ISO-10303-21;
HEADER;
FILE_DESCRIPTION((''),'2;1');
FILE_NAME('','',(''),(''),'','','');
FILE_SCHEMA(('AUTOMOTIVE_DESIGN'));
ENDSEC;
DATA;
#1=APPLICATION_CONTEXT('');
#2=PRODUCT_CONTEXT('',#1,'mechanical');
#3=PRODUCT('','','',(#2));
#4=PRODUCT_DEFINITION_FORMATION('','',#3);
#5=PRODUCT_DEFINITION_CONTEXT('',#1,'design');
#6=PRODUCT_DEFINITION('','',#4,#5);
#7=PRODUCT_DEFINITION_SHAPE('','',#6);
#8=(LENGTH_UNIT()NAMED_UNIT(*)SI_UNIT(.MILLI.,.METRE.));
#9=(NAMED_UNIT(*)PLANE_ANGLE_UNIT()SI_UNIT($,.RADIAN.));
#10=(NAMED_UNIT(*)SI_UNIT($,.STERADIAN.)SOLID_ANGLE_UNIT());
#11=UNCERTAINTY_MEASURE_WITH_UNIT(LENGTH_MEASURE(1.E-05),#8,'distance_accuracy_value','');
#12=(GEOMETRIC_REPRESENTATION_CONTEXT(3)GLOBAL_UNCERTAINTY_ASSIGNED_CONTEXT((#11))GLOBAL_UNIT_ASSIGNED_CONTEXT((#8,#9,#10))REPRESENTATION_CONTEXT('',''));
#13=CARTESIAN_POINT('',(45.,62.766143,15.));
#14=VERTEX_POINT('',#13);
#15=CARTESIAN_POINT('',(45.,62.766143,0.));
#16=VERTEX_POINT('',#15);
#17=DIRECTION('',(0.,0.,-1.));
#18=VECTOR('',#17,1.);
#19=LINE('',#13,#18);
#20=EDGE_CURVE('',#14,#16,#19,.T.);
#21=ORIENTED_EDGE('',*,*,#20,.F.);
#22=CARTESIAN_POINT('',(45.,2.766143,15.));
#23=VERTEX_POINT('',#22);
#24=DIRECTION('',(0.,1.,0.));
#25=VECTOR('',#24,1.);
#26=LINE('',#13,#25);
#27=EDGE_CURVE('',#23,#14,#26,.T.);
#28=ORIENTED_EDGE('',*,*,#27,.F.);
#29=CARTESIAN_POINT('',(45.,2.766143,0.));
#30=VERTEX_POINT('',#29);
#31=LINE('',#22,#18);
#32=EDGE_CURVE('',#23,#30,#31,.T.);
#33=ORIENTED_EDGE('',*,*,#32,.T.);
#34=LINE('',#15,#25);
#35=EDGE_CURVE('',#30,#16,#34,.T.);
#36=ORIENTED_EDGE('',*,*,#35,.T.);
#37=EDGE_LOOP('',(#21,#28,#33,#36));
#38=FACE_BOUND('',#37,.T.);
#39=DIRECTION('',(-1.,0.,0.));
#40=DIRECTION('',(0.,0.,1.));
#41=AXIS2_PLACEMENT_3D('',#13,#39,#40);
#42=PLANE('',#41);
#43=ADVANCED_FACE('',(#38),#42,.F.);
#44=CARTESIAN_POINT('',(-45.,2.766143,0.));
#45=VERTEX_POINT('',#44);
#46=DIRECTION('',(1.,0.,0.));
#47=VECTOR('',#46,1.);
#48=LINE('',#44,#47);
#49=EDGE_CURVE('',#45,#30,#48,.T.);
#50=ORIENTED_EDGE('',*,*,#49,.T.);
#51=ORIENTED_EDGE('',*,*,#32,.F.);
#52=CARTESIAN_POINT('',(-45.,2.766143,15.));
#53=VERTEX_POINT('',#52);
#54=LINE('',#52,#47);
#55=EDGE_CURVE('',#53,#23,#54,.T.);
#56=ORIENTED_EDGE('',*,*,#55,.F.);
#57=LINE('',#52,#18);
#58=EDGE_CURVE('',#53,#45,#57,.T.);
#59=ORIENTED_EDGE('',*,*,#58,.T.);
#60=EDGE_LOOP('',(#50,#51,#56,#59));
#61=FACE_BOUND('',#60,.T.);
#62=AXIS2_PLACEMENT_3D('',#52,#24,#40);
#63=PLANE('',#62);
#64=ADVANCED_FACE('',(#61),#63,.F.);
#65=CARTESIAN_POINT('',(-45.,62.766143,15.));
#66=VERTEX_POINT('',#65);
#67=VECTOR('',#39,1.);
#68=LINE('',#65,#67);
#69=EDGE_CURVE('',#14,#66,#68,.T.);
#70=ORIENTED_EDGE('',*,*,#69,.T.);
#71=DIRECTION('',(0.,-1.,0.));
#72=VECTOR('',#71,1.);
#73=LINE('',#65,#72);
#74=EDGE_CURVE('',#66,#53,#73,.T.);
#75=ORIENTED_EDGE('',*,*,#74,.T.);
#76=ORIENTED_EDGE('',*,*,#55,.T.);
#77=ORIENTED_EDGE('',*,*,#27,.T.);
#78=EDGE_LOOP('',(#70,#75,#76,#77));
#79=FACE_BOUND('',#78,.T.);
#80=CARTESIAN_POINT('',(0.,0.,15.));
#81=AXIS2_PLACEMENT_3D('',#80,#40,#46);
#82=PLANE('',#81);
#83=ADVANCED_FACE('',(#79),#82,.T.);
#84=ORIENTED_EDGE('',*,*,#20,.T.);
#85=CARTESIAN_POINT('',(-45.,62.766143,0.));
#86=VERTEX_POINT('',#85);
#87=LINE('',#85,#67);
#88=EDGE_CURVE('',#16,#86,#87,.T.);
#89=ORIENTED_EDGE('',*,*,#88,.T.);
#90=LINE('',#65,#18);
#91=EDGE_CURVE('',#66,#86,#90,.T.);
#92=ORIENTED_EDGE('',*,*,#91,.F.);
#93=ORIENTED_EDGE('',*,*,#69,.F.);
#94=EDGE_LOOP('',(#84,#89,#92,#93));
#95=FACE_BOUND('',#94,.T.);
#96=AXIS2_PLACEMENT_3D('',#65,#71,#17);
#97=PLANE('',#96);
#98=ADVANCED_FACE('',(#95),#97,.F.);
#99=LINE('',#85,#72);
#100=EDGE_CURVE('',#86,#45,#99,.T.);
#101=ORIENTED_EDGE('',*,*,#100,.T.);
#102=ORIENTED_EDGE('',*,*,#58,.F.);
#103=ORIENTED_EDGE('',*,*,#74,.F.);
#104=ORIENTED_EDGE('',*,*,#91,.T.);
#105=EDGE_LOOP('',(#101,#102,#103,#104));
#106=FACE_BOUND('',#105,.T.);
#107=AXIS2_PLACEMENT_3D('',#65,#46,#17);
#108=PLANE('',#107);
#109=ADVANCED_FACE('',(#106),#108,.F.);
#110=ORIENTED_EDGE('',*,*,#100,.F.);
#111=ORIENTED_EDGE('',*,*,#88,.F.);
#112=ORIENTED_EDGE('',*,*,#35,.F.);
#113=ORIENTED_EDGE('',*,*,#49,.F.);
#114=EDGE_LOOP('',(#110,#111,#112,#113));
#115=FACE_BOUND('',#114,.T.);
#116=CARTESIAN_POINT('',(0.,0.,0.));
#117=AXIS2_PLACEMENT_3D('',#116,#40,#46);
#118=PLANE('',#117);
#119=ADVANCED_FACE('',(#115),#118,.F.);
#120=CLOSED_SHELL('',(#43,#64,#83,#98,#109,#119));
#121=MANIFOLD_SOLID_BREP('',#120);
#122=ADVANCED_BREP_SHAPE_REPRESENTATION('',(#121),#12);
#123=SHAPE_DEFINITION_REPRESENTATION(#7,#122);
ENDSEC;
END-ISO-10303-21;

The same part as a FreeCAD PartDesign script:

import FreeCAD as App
import Part
import Sketcher

doc = App.newDocument("Part")
body = doc.addObject("PartDesign::Body", "Body")

# Sketch on XY plane
sketch1 = body.newObject("Sketcher::SketchObject", "Sketch")
sketch1.AttachmentSupport = (doc.getObject("XY_Plane"), [""])
sketch1.MapMode = "FlatFace"
sketch1.addGeometry(Part.LineSegment(App.Vector(-45, 62.766143, 0), App.Vector(-45, 2.766143, 0)), False)
sketch1.addGeometry(Part.LineSegment(App.Vector(-45, 2.766143, 0), App.Vector(45, 2.766143, 0)), False)
sketch1.addGeometry(Part.LineSegment(App.Vector(45, 2.766143, 0), App.Vector(45, 62.766143, 0)), False)
sketch1.addGeometry(Part.LineSegment(App.Vector(45, 62.766143, 0), App.Vector(-45, 62.766143, 0)), False)
sketch1.addConstraint(Sketcher.Constraint("Coincident", 0, 2, 1, 1))
sketch1.addConstraint(Sketcher.Constraint("Coincident", 1, 2, 2, 1))
sketch1.addConstraint(Sketcher.Constraint("Coincident", 2, 2, 3, 1))
sketch1.addConstraint(Sketcher.Constraint("Coincident", 3, 2, 0, 1))
sketch1.addConstraint(Sketcher.Constraint("Vertical", 0))
sketch1.addConstraint(Sketcher.Constraint("Horizontal", 1))
sketch1.addConstraint(Sketcher.Constraint("Vertical", 2))
sketch1.addConstraint(Sketcher.Constraint("Horizontal", 3))
sketch1.addConstraint(Sketcher.Constraint("DistanceX", 1, 1, 1, 2, 90.0))
sketch1.addConstraint(Sketcher.Constraint("DistanceY", 0, 2, 0, 1, 60.0))
sketch1.addConstraint(Sketcher.Constraint("DistanceX", 0, 2, -1, 1, 45.0))
sketch1.addConstraint(Sketcher.Constraint("DistanceY", -1, 1, 0, 2, 2.766143))
pad1 = body.newObject("PartDesign::Pad", "Pad")
pad1.Profile = sketch1
pad1.Length = 15

doc.recompute()
